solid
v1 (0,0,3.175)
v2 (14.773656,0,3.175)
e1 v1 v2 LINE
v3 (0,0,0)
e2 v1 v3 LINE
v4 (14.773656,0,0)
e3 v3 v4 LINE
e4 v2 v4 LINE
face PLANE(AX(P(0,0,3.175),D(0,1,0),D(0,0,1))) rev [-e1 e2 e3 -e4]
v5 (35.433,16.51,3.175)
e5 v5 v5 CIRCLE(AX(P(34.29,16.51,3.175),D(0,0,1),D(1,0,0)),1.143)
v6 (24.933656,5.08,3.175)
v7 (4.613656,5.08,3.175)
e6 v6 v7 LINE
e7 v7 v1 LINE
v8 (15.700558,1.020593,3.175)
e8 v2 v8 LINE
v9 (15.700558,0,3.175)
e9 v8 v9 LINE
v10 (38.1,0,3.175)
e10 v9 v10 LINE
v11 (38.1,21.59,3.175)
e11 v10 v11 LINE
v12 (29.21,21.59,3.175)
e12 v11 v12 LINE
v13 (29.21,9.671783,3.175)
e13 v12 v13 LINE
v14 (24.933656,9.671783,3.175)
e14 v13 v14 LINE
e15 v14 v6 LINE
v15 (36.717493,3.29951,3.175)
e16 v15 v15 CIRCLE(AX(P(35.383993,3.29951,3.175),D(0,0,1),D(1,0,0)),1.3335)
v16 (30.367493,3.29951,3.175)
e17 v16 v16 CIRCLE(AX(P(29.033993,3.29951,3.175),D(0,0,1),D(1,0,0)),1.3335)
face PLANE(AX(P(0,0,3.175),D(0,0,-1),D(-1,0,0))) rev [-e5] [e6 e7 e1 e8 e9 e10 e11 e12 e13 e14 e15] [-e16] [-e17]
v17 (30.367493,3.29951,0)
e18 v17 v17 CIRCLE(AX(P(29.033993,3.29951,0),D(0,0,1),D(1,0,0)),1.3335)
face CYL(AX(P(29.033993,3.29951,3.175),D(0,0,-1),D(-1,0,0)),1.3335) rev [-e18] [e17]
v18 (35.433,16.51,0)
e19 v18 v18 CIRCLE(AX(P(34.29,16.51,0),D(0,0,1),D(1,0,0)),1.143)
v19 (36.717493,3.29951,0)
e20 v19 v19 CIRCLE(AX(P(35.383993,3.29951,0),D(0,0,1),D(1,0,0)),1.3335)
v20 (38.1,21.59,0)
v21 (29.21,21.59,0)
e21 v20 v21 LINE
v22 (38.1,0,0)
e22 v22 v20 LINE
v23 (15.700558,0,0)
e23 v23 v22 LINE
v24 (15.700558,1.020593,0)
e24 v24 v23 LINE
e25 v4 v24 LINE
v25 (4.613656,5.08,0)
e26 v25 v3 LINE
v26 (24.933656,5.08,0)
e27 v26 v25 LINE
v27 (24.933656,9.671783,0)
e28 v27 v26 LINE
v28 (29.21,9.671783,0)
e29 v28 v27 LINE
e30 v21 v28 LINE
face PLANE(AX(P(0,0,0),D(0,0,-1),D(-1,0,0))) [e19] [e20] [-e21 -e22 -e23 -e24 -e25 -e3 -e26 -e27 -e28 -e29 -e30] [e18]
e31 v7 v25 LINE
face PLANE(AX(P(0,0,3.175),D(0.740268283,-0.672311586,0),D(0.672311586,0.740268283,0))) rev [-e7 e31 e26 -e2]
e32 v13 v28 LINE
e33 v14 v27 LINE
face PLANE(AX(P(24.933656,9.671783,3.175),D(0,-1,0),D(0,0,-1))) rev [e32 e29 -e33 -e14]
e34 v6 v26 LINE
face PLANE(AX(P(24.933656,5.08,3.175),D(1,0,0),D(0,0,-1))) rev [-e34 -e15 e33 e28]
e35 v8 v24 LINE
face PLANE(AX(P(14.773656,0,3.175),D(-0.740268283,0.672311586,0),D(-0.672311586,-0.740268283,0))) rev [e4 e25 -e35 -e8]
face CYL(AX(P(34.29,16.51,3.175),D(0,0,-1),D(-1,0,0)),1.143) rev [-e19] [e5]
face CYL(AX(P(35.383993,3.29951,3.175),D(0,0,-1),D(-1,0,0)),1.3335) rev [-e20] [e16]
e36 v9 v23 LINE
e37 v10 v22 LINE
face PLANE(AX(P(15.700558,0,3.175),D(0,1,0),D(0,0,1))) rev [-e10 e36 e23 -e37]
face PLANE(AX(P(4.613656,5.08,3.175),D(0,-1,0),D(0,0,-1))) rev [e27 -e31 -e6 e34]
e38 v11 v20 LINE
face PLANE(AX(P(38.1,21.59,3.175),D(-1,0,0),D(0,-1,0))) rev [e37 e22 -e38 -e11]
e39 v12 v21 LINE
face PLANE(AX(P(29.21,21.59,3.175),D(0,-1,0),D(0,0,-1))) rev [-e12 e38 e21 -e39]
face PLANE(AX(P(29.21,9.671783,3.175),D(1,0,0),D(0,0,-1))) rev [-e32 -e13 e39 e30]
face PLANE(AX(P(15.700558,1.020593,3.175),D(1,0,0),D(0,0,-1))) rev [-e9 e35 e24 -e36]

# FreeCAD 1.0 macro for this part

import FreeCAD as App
import Part
import Sketcher
from FreeCAD import Vector
Q = App.Units.Quantity


def add_polygon(sketch, points):
    """Adds a closed chain of lines whose ends are joined by coincident constraints."""
    first, n = sketch.GeometryCount, len(points)
    for a, b in zip(points, points[1:] + points[:1]):
        sketch.addGeometry(Part.LineSegment(App.Vector(*a, 0), App.Vector(*b, 0)), False)
    for i in range(n):
        sketch.addConstraint(Sketcher.Constraint("Coincident", first + i, 2, first + (i + 1) % n, 1))

doc = App.newDocument("Part")
body = doc.addObject("PartDesign::Body", "Body")

# Sketch on XY plane
sketch1 = body.newObject("Sketcher::SketchObject", "Sketch")
sketch1.AttachmentSupport = (doc.getObject("XY_Plane"), [""])
sketch1.MapMode = "FlatFace"
add_polygon(sketch1, [(4.613656, 5.08), (0, 0), (14.773656, 0), (15.700558, 1.020593), (15.700558, 0), (38.1, 0), (38.1, 21.59), (29.21, 21.59), (29.21, 9.671783), (24.933656, 9.671783), (24.933656, 5.08)])  # lines 0-10
sketch1.addGeometry(Part.Circle(Vector(35.383993, 3.29951, 0), Vector(0, 0, 1), 1.3335), False)  # 11
sketch1.addGeometry(Part.Circle(Vector(29.033993, 3.29951, 0), Vector(0, 0, 1), 1.3335), False)  # 12
sketch1.addGeometry(Part.Circle(Vector(34.29, 16.51, 0), Vector(0, 0, 1), 1.143), False)  # 13
sketch1.addConstraint(Sketcher.Constraint("Horizontal", 1))
sketch1.addConstraint(Sketcher.Constraint("Vertical", 3))
sketch1.addConstraint(Sketcher.Constraint("Horizontal", 4))
sketch1.addConstraint(Sketcher.Constraint("Vertical", 5))
sketch1.addConstraint(Sketcher.Constraint("Horizontal", 6))
sketch1.addConstraint(Sketcher.Constraint("Vertical", 7))
sketch1.addConstraint(Sketcher.Constraint("Horizontal", 8))
sketch1.addConstraint(Sketcher.Constraint("Vertical", 9))
sketch1.addConstraint(Sketcher.Constraint("Horizontal", 10))
sketch1.addConstraint(Sketcher.Constraint("Coincident", 0, 2, -1, 1))
sketch1.addConstraint(Sketcher.Constraint("Equal", 11, 12))
sketch1.addConstraint(Sketcher.Constraint("PointOnObject", 3, 2, -1))
sketch1.addConstraint(Sketcher.Constraint("Parallel", 0, 2))
sketch1.addConstraint(Sketcher.Constraint("Horizontal", 11, 3, 12, 3))
sketch1.addConstraint(Sketcher.Constraint("Diameter", 13, Q("0.09 in")))
sketch1.addConstraint(Sketcher.Constraint("Diameter", 11, Q("0.105 in")))
sketch1.addConstraint(Sketcher.Constraint("DistanceX", 10, 2, 10, 1, Q("0.8 in")))
sketch1.addConstraint(Sketcher.Constraint("DistanceX", 6, 2, 6, 1, Q("0.35 in")))
sketch1.addConstraint(Sketcher.Constraint("DistanceY", 5, 1, 5, 2, Q("0.85 in")))
sketch1.addConstraint(Sketcher.Constraint("DistanceX", -1, 1, 4, 2, Q("1.5 in")))
sketch1.addConstraint(Sketcher.Constraint("DistanceY", -1, 1, 9, 2, Q("0.2 in")))
sketch1.addConstraint(Sketcher.Constraint("DistanceY", 13, 3, 5, 2, Q("0.2 in")))
sketch1.addConstraint(Sketcher.Constraint("DistanceX", 6, 2, 13, 3, Q("0.2 in")))
sketch1.addConstraint(Sketcher.Constraint("DistanceX", 10, 2, 1, 2, Q("0.4 in")))
sketch1.addConstraint(Sketcher.Constraint("DistanceX", 12, 3, 11, 3, Q("0.25 in")))
sketch1.addConstraint(Sketcher.Constraint("Distance", 2, Q("1.378679 mm")))
sketch1.addConstraint(Sketcher.Constraint("DistanceX", 1, 1, 1, 2, Q("14.773656 mm")))
sketch1.addConstraint(Sketcher.Constraint("DistanceY", 7, 2, 7, 1, Q("11.918217 mm")))
sketch1.addConstraint(Sketcher.Constraint("DistanceY", -1, 1, 11, 3, Q("3.29951 mm")))
sketch1.addConstraint(Sketcher.Constraint("DistanceX", -1, 1, 11, 3, Q("35.383993 mm")))
pad1 = body.newObject("PartDesign::Pad", "Pad")
pad1.Profile = sketch1
pad1.Length = Q("0.125 in")

doc.recompute()
